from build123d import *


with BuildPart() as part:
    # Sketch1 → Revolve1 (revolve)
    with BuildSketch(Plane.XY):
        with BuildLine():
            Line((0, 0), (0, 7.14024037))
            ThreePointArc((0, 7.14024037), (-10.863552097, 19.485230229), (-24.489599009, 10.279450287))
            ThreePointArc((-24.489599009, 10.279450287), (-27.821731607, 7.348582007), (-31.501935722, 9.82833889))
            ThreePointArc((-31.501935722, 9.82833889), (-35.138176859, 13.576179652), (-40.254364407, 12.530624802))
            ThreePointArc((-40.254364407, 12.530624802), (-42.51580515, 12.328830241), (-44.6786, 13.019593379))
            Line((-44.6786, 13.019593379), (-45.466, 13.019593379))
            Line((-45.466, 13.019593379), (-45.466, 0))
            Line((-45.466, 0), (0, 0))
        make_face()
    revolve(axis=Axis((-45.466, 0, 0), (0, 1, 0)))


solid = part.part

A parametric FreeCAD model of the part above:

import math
import FreeCAD as App
import Part
import Sketcher
Q = App.Units.Quantity

doc = App.newDocument("Part")
body = doc.addObject("PartDesign::Body", "Body")

# Sketch on XY plane
sketch1 = body.newObject("Sketcher::SketchObject", "Sketch")
sketch1.AttachmentSupport = (doc.getObject("XY_Plane"), [""])
sketch1.MapMode = "FlatFace"
sketch1.addGeometry([
    Part.LineSegment(App.Vector(0, 0, 0), App.Vector(0, 7.14024, 0)),  # 0
    Part.ArcOfCircle(Part.Circle(App.Vector(-12.446, 7.14024, 0), App.Vector(0, 0, 1), 12.446), math.radians(0), math.radians(165.390701)),  # 1
    Part.ArcOfCircle(Part.Circle(App.Vector(-28.054913, 10.973289, 0), App.Vector(0, 0, 1), 3.6322), math.radians(-161.625765), math.radians(-11.012577)),  # 2
    Part.ArcOfCircle(Part.Circle(App.Vector(-36.741713, 8.382489, 0), App.Vector(0, 0, 1), 5.4356), math.radians(15.426162), math.radians(130.258009)),  # 3
    Part.ArcOfCircle(Part.Circle(App.Vector(-41.885213, 18.034489, 0), App.Vector(0, 0, 1), 5.7404), math.radians(-119.118591), math.radians(-73.494931)),  # 4
    Part.LineSegment(App.Vector(-44.6786, 13.019593, 0), App.Vector(-45.466, 13.019593, 0)),  # 5
    Part.LineSegment(App.Vector(-45.466, 13.019593, 0), App.Vector(-45.466, 0, 0)),  # 6
    Part.LineSegment(App.Vector(-45.466, 0, 0), App.Vector(0, 0, 0)),  # 7
], False)
sketch1.addGeometry(Part.LineSegment(App.Vector(-45.466, 0, 0), App.Vector(-45.466, 18.034489, 0)), True)  # axis
sketch1.addConstraint([
    Sketcher.Constraint("Tangent", 0, 2, 1, 1),
    Sketcher.Constraint("Coincident", 1, 2, 2, 2),
    Sketcher.Constraint("Coincident", 2, 1, 3, 1),
    Sketcher.Constraint("Coincident", 3, 2, 4, 2),
    Sketcher.Constraint("Coincident", 4, 1, 5, 1),
    Sketcher.Constraint("Coincident", 5, 2, 6, 1),
    Sketcher.Constraint("Coincident", 6, 2, 7, 1),
    Sketcher.Constraint("Coincident", 7, 2, 0, 1),
    Sketcher.Constraint("Vertical", 0),
    Sketcher.Constraint("Horizontal", 5),
    Sketcher.Constraint("Vertical", 6),
    Sketcher.Constraint("Horizontal", 7),
    Sketcher.Constraint("Vertical", 8),
    Sketcher.Constraint("Coincident", 7, 2, -1, 1),
    Sketcher.Constraint("Coincident", 8, 1, 6, 2),
    Sketcher.Constraint("Horizontal", 4, 3, 8, 2),
    Sketcher.Constraint("Radius", 1, Q("0.49 in")),
    Sketcher.Constraint("Radius", 2, Q("0.143 in")),
    Sketcher.Constraint("Radius", 3, Q("0.214 in")),
    Sketcher.Constraint("Radius", 4, Q("0.226 in")),
    Sketcher.Constraint("DistanceX", 7, 1, 7, 2, Q("1.79 in")),
    Sketcher.Constraint("DistanceX", 5, 2, 5, 1, Q("0.031 in")),
    Sketcher.Constraint("DistanceY", 3, 3, 4, 3, Q("0.38 in")),
    Sketcher.Constraint("DistanceX", 3, 3, 2, 3, Q("0.342 in")),
    Sketcher.Constraint("DistanceY", 3, 3, 2, 3, Q("0.102 in")),
    Sketcher.Constraint("DistanceX", 4, 3, 3, 3, Q("0.2025 in")),
    Sketcher.Constraint("DistanceY", 0, 1, 0, 2, Q("7.14024 mm")),
    Sketcher.Constraint("DistanceY", 8, 1, 8, 2, Q("18.034489 mm")),
    Sketcher.Constraint("DistanceX", 1, 2, -1, 1, Q("24.489599 mm")),
])
revolution = body.newObject("PartDesign::Revolution", "Revolution")
revolution.Profile = sketch1
revolution.ReferenceAxis = (sketch1, ["Axis0"])
revolution.Angle = 360

doc.recompute()
